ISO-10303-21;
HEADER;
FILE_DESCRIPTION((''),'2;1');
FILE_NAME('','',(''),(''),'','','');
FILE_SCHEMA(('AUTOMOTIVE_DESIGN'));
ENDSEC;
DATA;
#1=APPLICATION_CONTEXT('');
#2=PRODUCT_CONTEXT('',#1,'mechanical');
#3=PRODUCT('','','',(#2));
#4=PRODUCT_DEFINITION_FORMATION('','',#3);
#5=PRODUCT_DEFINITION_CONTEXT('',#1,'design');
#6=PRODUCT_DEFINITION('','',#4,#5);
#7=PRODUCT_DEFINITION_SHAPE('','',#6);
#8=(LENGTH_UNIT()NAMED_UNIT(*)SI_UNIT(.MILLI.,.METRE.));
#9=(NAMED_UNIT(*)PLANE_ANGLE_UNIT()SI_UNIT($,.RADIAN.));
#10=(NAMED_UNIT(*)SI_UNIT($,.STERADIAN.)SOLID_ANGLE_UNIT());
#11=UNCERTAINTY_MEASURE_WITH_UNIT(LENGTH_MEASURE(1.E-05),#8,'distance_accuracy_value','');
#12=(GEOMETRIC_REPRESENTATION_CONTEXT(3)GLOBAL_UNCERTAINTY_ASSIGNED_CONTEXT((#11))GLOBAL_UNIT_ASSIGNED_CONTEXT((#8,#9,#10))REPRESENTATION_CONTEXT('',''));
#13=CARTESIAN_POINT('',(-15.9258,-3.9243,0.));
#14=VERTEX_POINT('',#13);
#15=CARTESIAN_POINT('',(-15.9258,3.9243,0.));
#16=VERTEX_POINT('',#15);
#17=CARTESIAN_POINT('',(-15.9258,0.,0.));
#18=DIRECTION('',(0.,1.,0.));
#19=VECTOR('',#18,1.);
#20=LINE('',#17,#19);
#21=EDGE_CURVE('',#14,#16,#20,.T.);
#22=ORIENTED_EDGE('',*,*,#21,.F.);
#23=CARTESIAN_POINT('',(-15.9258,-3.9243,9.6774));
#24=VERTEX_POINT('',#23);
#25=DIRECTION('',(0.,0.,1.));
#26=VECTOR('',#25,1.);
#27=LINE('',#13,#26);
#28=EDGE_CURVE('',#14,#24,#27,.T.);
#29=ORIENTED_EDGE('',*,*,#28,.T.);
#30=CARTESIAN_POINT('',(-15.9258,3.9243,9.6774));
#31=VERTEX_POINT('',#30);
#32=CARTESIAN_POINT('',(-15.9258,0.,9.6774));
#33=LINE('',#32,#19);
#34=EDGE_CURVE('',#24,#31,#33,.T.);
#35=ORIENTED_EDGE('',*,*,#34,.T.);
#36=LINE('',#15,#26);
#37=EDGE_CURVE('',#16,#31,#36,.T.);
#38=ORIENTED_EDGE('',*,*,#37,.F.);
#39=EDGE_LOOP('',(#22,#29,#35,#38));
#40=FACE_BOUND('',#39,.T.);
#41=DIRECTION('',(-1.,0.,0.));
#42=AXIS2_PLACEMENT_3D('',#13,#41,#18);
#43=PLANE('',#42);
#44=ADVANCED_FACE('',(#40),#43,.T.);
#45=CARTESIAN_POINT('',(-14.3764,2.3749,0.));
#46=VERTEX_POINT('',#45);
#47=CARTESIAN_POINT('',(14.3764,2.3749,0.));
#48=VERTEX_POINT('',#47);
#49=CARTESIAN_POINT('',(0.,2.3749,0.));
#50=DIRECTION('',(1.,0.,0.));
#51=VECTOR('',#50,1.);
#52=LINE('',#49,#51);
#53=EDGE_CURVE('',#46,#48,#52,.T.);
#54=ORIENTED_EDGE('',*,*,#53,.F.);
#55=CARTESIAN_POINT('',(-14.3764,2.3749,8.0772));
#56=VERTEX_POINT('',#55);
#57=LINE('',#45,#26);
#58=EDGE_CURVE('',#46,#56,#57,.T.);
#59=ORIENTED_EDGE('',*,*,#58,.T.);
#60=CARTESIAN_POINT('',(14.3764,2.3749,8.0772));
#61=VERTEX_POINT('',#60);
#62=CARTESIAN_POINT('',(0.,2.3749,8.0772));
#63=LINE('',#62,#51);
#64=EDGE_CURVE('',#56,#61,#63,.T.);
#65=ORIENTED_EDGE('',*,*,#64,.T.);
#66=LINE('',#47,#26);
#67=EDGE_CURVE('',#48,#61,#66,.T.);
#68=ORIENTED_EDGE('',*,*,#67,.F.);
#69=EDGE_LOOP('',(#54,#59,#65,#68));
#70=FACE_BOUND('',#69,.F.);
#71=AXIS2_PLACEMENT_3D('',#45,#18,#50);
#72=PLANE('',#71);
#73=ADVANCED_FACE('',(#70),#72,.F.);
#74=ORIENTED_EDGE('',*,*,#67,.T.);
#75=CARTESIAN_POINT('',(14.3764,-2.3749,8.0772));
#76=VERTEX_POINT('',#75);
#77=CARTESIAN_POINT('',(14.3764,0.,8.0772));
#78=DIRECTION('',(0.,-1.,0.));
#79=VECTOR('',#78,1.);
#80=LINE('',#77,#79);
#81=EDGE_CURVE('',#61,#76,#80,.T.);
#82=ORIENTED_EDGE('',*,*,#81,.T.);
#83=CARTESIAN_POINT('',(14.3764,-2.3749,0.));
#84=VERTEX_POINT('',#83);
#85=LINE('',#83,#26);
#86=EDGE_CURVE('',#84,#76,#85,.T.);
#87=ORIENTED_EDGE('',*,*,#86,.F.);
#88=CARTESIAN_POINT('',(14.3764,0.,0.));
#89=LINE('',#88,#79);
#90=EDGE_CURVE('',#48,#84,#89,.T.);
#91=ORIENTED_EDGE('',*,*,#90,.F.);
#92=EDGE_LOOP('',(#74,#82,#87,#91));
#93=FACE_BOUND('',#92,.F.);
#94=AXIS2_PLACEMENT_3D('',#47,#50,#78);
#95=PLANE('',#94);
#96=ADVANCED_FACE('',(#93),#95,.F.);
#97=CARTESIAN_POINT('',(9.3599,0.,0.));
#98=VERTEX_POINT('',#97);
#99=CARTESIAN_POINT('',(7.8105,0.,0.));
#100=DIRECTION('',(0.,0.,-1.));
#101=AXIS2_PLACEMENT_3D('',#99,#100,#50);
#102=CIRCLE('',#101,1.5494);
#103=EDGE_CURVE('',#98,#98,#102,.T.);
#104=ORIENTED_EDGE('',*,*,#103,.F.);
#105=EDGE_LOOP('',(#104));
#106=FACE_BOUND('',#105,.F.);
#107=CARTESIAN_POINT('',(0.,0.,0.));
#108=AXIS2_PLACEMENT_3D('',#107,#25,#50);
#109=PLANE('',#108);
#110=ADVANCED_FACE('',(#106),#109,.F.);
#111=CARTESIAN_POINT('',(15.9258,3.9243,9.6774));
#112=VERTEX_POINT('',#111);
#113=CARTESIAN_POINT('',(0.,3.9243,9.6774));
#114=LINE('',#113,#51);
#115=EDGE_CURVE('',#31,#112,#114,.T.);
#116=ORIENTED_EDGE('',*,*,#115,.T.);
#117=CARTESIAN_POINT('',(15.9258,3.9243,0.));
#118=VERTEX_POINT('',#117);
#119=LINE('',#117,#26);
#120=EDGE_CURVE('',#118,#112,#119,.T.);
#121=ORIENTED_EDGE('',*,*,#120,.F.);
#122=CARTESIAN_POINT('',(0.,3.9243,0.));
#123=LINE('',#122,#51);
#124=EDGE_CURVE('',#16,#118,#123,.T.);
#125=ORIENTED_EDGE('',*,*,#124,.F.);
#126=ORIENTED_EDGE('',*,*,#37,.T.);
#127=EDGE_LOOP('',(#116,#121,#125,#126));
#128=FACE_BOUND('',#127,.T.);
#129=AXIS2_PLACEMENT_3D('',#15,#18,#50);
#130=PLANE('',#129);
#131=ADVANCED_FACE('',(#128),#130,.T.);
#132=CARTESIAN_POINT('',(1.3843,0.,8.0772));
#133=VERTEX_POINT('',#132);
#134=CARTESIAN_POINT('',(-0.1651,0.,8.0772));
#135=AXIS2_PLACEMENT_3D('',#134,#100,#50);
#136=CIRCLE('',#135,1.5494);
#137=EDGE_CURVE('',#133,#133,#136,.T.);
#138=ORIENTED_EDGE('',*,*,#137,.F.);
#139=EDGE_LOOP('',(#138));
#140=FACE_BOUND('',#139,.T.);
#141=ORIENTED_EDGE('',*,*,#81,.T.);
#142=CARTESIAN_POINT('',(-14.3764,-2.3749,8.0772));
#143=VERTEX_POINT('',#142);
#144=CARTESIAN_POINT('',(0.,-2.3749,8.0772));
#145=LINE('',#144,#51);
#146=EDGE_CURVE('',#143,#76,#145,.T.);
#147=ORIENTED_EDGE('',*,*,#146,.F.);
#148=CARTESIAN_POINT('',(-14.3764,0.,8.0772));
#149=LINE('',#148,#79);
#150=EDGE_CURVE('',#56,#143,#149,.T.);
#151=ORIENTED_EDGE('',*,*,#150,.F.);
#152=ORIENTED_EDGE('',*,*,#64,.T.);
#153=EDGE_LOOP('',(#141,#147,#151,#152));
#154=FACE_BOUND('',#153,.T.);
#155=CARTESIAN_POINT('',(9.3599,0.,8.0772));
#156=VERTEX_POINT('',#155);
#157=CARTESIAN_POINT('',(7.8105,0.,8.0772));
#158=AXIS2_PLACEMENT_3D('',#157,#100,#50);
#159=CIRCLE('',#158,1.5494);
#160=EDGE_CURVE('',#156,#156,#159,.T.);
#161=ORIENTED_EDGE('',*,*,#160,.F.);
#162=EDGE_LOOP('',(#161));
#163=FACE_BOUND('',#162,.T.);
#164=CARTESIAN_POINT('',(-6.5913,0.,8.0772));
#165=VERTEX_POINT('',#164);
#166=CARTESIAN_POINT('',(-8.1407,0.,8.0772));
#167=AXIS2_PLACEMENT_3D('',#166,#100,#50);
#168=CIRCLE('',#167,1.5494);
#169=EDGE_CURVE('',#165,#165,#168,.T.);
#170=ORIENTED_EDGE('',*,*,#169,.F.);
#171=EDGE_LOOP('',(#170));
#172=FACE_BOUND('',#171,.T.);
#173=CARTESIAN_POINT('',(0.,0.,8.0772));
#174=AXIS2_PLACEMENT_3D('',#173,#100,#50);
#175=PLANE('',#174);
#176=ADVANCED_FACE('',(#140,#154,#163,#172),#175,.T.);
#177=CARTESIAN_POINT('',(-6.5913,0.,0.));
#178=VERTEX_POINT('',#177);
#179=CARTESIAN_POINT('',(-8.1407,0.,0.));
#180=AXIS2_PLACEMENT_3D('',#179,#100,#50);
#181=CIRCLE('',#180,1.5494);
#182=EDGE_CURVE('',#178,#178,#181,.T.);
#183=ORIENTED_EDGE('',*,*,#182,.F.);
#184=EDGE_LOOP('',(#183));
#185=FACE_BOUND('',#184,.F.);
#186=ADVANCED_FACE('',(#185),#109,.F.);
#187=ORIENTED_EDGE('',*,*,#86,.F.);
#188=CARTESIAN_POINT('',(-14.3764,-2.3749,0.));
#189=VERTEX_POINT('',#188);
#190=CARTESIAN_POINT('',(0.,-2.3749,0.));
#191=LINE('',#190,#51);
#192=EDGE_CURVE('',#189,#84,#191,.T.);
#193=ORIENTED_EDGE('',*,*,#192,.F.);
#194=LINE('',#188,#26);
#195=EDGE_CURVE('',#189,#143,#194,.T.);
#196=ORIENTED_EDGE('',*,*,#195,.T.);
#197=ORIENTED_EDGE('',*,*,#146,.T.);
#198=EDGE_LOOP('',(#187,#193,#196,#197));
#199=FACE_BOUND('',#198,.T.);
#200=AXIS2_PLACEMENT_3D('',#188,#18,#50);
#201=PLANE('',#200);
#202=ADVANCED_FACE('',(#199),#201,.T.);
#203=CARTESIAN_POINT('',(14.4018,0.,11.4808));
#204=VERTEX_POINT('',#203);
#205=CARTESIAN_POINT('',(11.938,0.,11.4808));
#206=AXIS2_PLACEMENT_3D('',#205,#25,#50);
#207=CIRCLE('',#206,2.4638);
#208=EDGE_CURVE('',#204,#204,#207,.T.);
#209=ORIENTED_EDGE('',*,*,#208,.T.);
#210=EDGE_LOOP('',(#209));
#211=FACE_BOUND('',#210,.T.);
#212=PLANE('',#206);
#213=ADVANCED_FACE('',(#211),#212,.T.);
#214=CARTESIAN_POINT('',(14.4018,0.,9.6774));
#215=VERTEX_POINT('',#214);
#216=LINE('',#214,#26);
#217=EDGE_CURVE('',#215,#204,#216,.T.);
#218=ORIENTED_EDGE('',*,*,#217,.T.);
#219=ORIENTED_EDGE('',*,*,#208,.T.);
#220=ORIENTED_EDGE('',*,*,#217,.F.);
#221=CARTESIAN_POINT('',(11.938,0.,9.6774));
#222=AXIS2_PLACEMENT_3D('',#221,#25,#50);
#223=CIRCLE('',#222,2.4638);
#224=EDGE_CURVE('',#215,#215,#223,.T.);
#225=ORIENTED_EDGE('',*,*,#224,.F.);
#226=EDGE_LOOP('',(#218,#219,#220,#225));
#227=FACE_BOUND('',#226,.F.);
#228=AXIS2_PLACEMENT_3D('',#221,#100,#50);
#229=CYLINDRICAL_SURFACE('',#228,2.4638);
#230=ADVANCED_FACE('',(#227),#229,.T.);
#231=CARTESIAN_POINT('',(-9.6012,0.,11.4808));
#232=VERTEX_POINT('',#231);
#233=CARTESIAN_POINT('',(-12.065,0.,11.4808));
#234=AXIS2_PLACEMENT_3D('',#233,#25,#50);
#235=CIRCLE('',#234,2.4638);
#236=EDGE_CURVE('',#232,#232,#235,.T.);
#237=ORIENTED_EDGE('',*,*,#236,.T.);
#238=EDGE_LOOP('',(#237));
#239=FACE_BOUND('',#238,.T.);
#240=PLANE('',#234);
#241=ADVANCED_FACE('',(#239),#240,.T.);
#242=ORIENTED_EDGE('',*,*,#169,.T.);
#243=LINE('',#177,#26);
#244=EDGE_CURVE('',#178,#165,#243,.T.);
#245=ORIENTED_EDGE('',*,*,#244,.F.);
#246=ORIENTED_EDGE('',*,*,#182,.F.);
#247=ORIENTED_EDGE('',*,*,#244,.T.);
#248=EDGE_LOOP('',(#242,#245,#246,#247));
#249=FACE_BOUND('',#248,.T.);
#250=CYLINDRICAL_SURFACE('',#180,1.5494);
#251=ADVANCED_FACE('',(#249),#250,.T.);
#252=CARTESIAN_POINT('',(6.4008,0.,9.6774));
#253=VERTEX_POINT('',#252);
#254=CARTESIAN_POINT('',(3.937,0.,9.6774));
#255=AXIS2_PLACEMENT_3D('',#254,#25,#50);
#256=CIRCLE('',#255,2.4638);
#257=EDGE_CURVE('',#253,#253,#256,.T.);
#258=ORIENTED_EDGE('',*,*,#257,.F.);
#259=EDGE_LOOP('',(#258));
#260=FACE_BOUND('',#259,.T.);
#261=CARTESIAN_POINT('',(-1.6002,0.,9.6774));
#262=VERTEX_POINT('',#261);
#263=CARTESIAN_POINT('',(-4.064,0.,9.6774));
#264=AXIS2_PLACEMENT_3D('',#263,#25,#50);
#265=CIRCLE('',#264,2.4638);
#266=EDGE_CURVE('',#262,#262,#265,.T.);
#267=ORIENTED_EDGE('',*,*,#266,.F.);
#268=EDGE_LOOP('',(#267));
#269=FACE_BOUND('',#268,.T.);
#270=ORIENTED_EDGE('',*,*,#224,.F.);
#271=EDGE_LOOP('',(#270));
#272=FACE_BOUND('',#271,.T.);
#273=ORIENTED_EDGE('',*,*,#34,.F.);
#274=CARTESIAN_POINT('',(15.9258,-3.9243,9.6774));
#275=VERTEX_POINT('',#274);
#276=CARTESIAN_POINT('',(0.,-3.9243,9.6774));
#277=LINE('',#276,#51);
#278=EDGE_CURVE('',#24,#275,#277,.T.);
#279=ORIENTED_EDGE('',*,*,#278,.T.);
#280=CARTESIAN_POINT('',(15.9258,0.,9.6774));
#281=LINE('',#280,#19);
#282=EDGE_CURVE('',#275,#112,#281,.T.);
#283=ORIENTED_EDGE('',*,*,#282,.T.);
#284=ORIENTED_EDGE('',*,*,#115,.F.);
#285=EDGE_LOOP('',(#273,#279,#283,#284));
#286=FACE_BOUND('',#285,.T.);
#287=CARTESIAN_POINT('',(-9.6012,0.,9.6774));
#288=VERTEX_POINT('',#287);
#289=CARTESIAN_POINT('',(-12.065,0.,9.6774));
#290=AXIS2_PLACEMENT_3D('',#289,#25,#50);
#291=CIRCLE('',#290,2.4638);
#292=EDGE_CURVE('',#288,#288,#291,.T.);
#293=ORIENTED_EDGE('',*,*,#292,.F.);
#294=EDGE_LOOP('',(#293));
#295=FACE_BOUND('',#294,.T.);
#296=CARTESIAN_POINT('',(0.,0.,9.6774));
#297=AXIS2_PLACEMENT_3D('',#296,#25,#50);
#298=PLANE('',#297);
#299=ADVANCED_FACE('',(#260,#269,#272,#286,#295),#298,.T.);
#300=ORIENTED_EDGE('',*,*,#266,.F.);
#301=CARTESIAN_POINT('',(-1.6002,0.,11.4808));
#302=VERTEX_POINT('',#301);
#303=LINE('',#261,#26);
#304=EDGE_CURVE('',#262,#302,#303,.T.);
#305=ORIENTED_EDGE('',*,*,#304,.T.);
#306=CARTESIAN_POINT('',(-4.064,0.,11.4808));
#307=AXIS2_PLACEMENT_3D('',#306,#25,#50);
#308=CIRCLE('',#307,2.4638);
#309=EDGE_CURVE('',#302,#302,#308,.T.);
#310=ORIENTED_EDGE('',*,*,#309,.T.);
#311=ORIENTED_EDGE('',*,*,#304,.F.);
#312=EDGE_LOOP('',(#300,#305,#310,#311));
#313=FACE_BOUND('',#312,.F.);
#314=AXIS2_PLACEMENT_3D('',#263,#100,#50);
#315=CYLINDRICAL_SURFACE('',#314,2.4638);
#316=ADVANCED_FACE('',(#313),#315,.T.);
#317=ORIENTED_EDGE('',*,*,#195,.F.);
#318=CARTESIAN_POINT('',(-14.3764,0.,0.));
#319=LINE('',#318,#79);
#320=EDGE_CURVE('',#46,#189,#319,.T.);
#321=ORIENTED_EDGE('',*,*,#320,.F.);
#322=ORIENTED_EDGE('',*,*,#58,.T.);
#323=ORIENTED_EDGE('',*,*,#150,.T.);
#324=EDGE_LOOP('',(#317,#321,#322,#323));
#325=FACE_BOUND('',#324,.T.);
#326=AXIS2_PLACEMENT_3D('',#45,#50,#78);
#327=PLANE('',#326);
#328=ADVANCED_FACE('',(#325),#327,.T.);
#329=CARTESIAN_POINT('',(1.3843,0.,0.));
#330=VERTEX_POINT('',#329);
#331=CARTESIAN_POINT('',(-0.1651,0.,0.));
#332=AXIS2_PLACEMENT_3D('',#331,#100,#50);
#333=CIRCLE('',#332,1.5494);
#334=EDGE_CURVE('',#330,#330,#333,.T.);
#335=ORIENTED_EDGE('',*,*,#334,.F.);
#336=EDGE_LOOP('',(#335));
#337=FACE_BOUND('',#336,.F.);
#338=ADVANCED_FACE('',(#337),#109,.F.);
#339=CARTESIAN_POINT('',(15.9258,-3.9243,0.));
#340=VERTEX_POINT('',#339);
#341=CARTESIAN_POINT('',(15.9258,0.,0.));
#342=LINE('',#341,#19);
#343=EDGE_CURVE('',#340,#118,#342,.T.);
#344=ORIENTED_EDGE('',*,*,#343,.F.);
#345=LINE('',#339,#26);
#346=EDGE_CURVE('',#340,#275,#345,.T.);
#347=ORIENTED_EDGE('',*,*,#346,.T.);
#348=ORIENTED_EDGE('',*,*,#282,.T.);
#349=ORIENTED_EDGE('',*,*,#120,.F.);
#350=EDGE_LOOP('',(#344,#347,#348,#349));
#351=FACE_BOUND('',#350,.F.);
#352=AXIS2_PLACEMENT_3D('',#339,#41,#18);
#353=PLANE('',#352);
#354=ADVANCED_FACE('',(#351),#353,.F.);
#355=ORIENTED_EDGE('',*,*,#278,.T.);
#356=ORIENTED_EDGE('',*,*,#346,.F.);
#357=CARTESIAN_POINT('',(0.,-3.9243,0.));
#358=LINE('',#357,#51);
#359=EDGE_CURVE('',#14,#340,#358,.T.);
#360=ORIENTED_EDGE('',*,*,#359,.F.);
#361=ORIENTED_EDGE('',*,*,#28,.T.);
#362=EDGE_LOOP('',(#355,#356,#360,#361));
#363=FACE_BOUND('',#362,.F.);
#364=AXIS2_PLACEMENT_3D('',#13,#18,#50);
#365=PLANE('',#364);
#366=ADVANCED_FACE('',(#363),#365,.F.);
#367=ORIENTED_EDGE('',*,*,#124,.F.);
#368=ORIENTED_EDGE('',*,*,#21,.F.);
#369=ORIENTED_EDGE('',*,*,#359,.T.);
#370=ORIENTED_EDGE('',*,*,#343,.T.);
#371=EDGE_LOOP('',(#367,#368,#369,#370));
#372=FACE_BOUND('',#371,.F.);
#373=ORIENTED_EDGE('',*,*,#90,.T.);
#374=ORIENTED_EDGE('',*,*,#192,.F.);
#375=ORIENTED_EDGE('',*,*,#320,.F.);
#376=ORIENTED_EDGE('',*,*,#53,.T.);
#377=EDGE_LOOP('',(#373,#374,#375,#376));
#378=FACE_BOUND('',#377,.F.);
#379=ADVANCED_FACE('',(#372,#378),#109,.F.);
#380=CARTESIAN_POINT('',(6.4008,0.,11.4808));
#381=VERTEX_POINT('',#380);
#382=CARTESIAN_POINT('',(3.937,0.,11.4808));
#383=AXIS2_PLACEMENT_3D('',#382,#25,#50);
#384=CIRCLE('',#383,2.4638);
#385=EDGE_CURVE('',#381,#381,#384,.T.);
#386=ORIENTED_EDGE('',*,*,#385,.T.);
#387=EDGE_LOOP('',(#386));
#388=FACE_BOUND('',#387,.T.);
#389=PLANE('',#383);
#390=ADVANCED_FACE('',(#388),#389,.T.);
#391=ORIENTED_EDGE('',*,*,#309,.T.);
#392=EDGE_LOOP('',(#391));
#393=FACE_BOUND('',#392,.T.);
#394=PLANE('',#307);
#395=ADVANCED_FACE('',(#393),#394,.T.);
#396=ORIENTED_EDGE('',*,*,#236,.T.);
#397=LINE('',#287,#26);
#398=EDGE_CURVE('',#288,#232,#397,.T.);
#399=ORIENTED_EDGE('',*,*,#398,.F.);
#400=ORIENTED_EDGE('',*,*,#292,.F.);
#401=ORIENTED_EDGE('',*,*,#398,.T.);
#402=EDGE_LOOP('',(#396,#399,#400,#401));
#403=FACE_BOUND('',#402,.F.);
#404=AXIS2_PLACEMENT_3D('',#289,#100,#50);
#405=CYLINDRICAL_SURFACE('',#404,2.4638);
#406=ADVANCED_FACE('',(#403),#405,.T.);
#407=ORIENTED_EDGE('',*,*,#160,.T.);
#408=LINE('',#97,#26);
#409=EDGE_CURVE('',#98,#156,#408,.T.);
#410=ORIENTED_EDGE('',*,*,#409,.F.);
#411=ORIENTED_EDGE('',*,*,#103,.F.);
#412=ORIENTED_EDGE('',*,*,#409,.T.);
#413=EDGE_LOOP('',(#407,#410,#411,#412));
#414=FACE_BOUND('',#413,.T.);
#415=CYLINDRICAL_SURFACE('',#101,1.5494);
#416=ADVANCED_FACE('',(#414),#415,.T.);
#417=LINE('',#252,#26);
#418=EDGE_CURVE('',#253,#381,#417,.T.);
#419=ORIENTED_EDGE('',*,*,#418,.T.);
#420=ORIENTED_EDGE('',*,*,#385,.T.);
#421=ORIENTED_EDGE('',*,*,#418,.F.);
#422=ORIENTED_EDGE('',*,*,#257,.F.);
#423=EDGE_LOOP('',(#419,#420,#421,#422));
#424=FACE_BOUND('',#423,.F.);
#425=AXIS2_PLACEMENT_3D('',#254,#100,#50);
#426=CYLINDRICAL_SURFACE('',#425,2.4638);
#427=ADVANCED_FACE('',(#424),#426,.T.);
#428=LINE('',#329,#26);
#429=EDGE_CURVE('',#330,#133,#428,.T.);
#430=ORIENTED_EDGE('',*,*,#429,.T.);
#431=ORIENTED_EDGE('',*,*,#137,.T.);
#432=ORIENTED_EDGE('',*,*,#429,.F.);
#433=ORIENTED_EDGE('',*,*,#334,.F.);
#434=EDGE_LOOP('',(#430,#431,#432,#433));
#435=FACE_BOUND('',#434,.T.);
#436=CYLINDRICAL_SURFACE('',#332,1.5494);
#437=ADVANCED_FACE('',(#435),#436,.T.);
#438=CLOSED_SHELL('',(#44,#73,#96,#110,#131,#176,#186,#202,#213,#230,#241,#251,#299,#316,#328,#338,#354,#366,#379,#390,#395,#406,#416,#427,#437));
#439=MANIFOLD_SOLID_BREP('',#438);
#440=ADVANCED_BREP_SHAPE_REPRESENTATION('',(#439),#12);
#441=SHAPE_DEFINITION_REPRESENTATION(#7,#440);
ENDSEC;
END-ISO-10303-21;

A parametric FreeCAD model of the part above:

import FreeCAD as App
import Part
import Sketcher
Q = App.Units.Quantity

doc = App.newDocument("Part")
body = doc.addObject("PartDesign::Body", "Body")

sketch1 = body.newObject("Sketcher::SketchObject", "Sketch")
sketch1.AttachmentSupport = (doc.getObject("XY_Plane"), [""])
sketch1.MapMode = "FlatFace"
sketch1.addGeometry([
    Part.LineSegment(App.Vector(-16, 4, 0), App.Vector(-16, -4, 0)),
    Part.LineSegment(App.Vector(-16, -4, 0), App.Vector(16, -4, 0)),
    Part.LineSegment(App.Vector(16, -4, 0), App.Vector(16, 4, 0)),
    Part.LineSegment(App.Vector(16, 4, 0), App.Vector(-16, 4, 0)),
], False)
sketch1.addConstraint([
    Sketcher.Constraint("Coincident", 0, 2, 1, 1),
    Sketcher.Constraint("Coincident", 1, 2, 2, 1),
    Sketcher.Constraint("Coincident", 2, 2, 3, 1),
    Sketcher.Constraint("Coincident", 3, 2, 0, 1),
    Sketcher.Constraint("Vertical", 0),
    Sketcher.Constraint("Horizontal", 1),
    Sketcher.Constraint("Vertical", 2),
    Sketcher.Constraint("Horizontal", 3),
    Sketcher.Constraint("Symmetric", 0, 2, 2, 2, -1, 1),
    Sketcher.Constraint("DistanceX", 1, 1, 1, 2, Q("1.254 in")),
    Sketcher.Constraint("DistanceY", 0, 2, 0, 1, Q("0.309 in")),
])
pad1 = body.newObject("PartDesign::Pad", "Pad")
pad1.Profile = sketch1
pad1.Length = Q("0.381 in")

sketch2 = body.newObject("Sketcher::SketchObject", "Sketch001")
sketch2.AttachmentSupport = (doc.getObject("XY_Plane"), [""])
sketch2.MapMode = "FlatFace"
sketch2.AttachmentOffset = App.Placement(App.Vector(0, 0, 0.381 * 25.4), App.Rotation())
sketch2.addGeometry([
    Part.Circle(App.Vector(-4.1, 0, 0), App.Vector(0, 0, 1), 2.5),
    Part.Circle(App.Vector(3.9, 0, 0), App.Vector(0, 0, 1), 2.5),
    Part.Circle(App.Vector(11.9, 0, 0), App.Vector(0, 0, 1), 2.5),
    Part.Circle(App.Vector(-12.1, 0, 0), App.Vector(0, 0, 1), 2.5),
], False)
sketch2.addConstraint([
    Sketcher.Constraint("Equal", 0, 1),
    Sketcher.Constraint("Equal", 1, 2),
    Sketcher.Constraint("Equal", 2, 3),
    Sketcher.Constraint("PointOnObject", 0, 3, -1),
    Sketcher.Constraint("PointOnObject", 1, 3, -1),
    Sketcher.Constraint("PointOnObject", 2, 3, -1),
    Sketcher.Constraint("PointOnObject", 3, 3, -1),
    Sketcher.Constraint("Diameter", 0, Q("0.194 in")),
    Sketcher.Constraint("DistanceX", 0, 3, -1, 1, Q("0.16 in")),
    Sketcher.Constraint("DistanceX", -1, 1, 2, 3, Q("0.47 in")),
    Sketcher.Constraint("DistanceX", 3, 3, 1, 3, Q("0.63 in")),
    Sketcher.Constraint("DistanceX", -1, 1, 1, 3, Q("0.155 in")),
])
pad2 = body.newObject("PartDesign::Pad", "Pad001")
pad2.Profile = sketch2
pad2.Length = Q("0.071 in")

sketch3 = body.newObject("Sketcher::SketchObject", "Sketch002")
sketch3.AttachmentSupport = (doc.getObject("XY_Plane"), [""])
sketch3.MapMode = "FlatFace"
sketch3.addGeometry([
    Part.LineSegment(App.Vector(-14.4, -2.4, 0), App.Vector(-14.4, 2.4, 0)),
    Part.LineSegment(App.Vector(-14.4, 2.4, 0), App.Vector(14.4, 2.4, 0)),
    Part.LineSegment(App.Vector(14.4, 2.4, 0), App.Vector(14.4, -2.4, 0)),
    Part.LineSegment(App.Vector(14.4, -2.4, 0), App.Vector(-14.4, -2.4, 0)),
    Part.Circle(App.Vector(-8.1, 0, 0), App.Vector(0, 0, 1), 1.5),
    Part.Circle(App.Vector(-0.2, 0, 0), App.Vector(0, 0, 1), 1.5),
    Part.Circle(App.Vector(7.8, 0, 0), App.Vector(0, 0, 1), 1.5),
], False)
sketch3.addConstraint([
    Sketcher.Constraint("Coincident", 0, 2, 1, 1),
    Sketcher.Constraint("Coincident", 1, 2, 2, 1),
    Sketcher.Constraint("Coincident", 2, 2, 3, 1),
    Sketcher.Constraint("Coincident", 3, 2, 0, 1),
    Sketcher.Constraint("Vertical", 0),
    Sketcher.Constraint("Horizontal", 1),
    Sketcher.Constraint("Vertical", 2),
    Sketcher.Constraint("Horizontal", 3),
    Sketcher.Constraint("Equal", 4, 5),
    Sketcher.Constraint("Equal", 5, 6),
    Sketcher.Constraint("Symmetric", 0, 2, 2, 2, -1, 1),
    Sketcher.Constraint("PointOnObject", 4, 3, -1),
    Sketcher.Constraint("PointOnObject", 5, 3, -1),
    Sketcher.Constraint("PointOnObject", 6, 3, -1),
    Sketcher.Constraint("Diameter", 4, Q("0.122 in")),
    Sketcher.Constraint("DistanceX", 1, 1, 1, 2, Q("1.132 in")),
    Sketcher.Constraint("DistanceY", 0, 1, 0, 2, Q("0.187 in")),
    Sketcher.Constraint("DistanceX", 4, 3, 5, 3, Q("0.314 in")),
    Sketcher.Constraint("DistanceX", 5, 3, 6, 3, Q("0.314 in")),
    Sketcher.Constraint("DistanceX", 4, 3, -1, 1, Q("0.3205 in")),
])
pocket1 = body.newObject("PartDesign::Pocket", "Pocket")
pocket1.Profile = sketch3
pocket1.Length = Q("0.318 in")
pocket1.Reversed = True

doc.recompute()
